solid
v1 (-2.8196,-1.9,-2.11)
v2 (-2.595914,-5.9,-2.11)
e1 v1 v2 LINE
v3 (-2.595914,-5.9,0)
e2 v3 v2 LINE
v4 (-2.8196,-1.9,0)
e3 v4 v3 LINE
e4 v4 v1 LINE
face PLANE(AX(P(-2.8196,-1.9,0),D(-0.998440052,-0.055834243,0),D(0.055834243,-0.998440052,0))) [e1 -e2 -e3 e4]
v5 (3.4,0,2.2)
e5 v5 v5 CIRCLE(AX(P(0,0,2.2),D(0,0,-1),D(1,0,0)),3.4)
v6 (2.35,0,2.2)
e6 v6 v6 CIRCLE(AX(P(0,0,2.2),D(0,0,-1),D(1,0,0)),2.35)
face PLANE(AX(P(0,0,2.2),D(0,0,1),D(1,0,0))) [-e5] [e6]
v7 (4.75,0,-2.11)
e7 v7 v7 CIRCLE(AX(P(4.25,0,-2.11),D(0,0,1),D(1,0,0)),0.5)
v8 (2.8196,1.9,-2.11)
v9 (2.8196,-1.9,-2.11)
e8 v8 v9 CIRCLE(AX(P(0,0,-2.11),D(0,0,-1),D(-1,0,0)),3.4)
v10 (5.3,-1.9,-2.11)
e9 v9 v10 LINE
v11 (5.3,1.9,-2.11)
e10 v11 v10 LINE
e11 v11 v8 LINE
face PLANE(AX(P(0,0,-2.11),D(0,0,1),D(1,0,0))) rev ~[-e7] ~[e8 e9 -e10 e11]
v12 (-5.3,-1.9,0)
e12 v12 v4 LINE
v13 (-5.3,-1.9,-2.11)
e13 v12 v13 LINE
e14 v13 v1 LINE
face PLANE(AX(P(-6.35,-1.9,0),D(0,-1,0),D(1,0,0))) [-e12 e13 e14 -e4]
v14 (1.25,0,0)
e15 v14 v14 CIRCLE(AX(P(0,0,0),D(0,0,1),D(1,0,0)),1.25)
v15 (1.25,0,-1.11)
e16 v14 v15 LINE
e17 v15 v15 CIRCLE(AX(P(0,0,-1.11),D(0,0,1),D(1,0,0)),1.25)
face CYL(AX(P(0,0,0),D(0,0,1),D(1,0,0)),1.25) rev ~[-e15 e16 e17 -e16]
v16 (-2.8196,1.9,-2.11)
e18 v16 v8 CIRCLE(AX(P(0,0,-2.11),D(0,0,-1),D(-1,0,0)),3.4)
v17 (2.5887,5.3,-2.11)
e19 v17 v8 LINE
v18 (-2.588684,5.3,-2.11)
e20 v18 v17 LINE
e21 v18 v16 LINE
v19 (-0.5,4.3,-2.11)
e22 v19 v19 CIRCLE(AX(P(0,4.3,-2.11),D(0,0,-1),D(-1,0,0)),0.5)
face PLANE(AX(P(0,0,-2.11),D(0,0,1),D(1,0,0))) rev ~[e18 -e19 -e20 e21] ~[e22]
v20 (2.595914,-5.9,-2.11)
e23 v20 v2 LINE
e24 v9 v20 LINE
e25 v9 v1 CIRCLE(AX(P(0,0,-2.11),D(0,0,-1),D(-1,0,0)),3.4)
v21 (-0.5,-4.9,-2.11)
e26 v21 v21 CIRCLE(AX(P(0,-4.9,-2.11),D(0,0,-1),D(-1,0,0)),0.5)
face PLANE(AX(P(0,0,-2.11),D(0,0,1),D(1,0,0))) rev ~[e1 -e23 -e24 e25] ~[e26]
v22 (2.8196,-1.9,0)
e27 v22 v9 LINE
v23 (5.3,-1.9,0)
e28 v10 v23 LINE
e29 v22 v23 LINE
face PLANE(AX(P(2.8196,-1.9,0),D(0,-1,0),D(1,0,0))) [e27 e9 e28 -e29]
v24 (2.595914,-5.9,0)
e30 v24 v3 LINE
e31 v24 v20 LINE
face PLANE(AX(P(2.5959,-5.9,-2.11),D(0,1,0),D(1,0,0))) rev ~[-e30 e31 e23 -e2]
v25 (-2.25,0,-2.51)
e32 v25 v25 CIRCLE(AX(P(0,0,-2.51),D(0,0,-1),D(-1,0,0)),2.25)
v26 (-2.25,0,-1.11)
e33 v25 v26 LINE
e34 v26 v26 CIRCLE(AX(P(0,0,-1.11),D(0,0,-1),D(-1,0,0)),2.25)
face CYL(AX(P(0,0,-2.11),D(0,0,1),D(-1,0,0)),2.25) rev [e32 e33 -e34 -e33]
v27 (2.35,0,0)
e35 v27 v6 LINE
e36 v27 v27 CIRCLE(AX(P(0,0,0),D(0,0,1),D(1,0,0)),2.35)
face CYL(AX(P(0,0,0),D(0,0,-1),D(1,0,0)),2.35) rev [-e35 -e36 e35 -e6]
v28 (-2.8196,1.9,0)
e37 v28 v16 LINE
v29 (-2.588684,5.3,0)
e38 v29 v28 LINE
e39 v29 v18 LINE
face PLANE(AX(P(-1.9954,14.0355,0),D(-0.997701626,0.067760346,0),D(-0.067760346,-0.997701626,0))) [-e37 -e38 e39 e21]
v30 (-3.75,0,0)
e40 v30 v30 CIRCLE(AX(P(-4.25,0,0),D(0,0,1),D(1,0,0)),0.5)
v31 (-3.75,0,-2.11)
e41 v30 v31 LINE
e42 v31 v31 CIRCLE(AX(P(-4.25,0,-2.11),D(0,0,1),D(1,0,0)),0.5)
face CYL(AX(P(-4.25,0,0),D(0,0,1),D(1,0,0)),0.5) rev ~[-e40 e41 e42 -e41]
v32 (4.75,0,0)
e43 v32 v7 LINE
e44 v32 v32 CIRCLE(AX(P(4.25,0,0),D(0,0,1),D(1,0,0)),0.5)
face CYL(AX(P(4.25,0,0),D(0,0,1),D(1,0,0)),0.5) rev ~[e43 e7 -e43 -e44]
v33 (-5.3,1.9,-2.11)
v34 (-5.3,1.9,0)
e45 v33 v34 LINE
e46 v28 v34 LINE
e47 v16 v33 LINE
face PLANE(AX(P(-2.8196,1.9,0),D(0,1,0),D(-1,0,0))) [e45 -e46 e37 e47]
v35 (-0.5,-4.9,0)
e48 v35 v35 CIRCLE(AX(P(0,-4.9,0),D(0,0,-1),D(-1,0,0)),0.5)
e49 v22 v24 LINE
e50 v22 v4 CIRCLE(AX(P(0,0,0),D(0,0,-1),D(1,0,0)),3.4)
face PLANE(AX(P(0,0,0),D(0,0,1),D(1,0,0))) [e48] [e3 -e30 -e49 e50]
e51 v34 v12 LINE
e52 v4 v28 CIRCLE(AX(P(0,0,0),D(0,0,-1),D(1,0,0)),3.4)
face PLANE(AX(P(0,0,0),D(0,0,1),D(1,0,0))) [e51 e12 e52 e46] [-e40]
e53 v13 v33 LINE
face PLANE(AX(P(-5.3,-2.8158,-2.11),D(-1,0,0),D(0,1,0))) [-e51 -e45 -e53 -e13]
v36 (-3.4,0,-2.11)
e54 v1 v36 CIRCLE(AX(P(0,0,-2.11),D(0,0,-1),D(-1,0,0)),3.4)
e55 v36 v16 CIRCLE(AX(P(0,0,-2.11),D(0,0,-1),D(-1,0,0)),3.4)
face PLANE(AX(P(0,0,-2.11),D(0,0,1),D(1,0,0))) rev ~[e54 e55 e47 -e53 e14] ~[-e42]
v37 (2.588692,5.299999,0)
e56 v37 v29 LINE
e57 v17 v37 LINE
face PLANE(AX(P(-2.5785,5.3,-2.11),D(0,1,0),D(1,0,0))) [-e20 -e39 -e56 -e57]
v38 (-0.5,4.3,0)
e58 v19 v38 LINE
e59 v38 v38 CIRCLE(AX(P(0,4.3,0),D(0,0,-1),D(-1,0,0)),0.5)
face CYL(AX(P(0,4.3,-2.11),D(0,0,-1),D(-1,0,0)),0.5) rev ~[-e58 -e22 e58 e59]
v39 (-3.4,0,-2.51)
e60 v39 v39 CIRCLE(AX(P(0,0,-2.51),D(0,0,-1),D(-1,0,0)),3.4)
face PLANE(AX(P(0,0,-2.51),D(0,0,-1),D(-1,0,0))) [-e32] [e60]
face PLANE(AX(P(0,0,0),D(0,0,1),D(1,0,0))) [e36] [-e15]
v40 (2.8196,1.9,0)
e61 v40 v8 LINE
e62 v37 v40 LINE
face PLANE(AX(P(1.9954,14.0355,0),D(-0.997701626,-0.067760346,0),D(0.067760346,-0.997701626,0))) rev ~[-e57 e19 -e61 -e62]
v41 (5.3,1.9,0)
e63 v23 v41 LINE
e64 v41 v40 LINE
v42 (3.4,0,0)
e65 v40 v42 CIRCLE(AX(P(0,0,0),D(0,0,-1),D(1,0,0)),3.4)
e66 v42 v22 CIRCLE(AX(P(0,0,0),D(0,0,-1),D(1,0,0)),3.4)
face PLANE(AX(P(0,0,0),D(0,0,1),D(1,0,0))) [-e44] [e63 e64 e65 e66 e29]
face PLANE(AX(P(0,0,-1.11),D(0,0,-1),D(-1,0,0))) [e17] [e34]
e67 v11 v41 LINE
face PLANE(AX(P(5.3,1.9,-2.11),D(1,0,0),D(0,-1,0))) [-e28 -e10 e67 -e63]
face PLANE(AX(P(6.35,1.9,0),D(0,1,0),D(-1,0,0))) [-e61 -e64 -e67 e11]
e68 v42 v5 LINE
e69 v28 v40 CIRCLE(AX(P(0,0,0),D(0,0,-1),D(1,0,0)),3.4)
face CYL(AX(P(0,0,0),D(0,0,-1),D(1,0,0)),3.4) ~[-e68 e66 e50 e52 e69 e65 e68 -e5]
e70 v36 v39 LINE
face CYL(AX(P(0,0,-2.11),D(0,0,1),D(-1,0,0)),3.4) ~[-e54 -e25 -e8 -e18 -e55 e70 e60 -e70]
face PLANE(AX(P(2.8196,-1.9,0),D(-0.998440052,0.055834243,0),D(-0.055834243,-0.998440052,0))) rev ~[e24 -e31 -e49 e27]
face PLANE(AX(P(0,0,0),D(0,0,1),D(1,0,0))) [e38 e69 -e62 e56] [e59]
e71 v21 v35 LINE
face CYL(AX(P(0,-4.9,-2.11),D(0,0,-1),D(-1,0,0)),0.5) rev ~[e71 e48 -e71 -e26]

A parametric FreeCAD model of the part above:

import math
import FreeCAD as App
import Part
import Sketcher

V = App.Vector
Q = App.Units.Quantity


def edges_at(feature, points):
    """Names of the edges that pass closest to the given points."""
    edges = feature.Shape.Edges
    near = lambda p: min(range(len(edges)), key=lambda i: edges[i].distToShape(Part.Vertex(*p))[0])
    return sorted({f"Edge{near(p) + 1}" for p in points})


def add_polygon(sketch, points):
    """Adds a closed chain of lines whose ends are joined by coincident constraints."""
    first, n = sketch.GeometryCount, len(points)
    for a, b in zip(points, points[1:] + points[:1]):
        sketch.addGeometry(Part.LineSegment(App.Vector(*a, 0), App.Vector(*b, 0)), False)
    for i in range(n):
        sketch.addConstraint(Sketcher.Constraint("Coincident", first + i, 2, first + (i + 1) % n, 1))

doc = App.newDocument("Part")
body = doc.addObject("PartDesign::Body", "Body")

sketch1 = doc.addObject("Sketcher::SketchObject", "Sketch")
body.addObject(sketch1)
sketch1.AttachmentSupport = (doc.XY_Plane, [""])
sketch1.MapMode = "FlatFace"
sketch1.addGeometry(Part.Circle(V(0, 0, 0), V(0, 0, 1), 3.4), False)
sketch1.addConstraint([
    Sketcher.Constraint("Coincident", 0, 3, -1, 1),
    Sketcher.Constraint("Diameter", 0, Q("6.8 mm")),
])
pad1 = doc.addObject("PartDesign::Pad", "Pad")
body.addObject(pad1)
pad1.Profile = sketch1
pad1.Length = 2.2

sketch2 = doc.addObject("Sketcher::SketchObject", "Sketch001")
body.addObject(sketch2)
sketch2.AttachmentSupport = (doc.XY_Plane, [""])
sketch2.MapMode = "FlatFace"
sketch2.addGeometry([
    Part.LineSegment(V(6.35, 1.9, 0), V(2.8196, 1.9, 0)),
    Part.LineSegment(V(2.8196, 1.9, 0), V(1.9954, 14.0355, 0)),
    Part.ArcOfCircle(Part.Circle(V(0, 13.9, 0), V(0, 0, 1), 1.999995), math.radians(3.884774), math.radians(176.115226)),
    Part.LineSegment(V(-1.9954, 14.0355, 0), V(-2.8196, 1.9, 0)),
    Part.LineSegment(V(-2.8196, 1.9, 0), V(-6.35, 1.9, 0)),
    Part.ArcOfCircle(Part.Circle(V(-6.35, 0, 0), V(0, 0, 1), 1.9), math.radians(90), math.radians(270)),
    Part.LineSegment(V(-6.35, -1.9, 0), V(-2.8196, -1.9, 0)),
    Part.LineSegment(V(-2.8196, -1.9, 0), V(-1.9969, -16.6117, 0)),
    Part.ArcOfCircle(Part.Circle(V(0, -16.5, 0), V(0, 0, 1), 2.000022), math.radians(-176.798399), math.radians(-3.201601)),
    Part.LineSegment(V(1.9969, -16.6117, 0), V(2.8196, -1.9, 0)),
    Part.LineSegment(V(2.8196, -1.9, 0), V(6.35, -1.9, 0)),
    Part.ArcOfCircle(Part.Circle(V(6.35, 0, 0), V(0, 0, 1), 1.9), math.radians(-90), math.radians(90)),
    Part.Circle(V(4.25, 0, 0), V(0, 0, 1), 0.5),
    Part.Circle(V(6.35, 0, 0), V(0, 0, 1), 0.5),
    Part.Circle(V(0, -16.5, 0), V(0, 0, 1), 0.5),
    Part.Circle(V(0, -14.5, 0), V(0, 0, 1), 0.5),
    Part.Circle(V(0, -12.5, 0), V(0, 0, 1), 0.5),
    Part.Circle(V(0, -10.5, 0), V(0, 0, 1), 0.5),
    Part.Circle(V(0, -8.5, 0), V(0, 0, 1), 0.5),
    Part.Circle(V(0, -6.5, 0), V(0, 0, 1), 0.5),
    Part.Circle(V(0, -4.5, 0), V(0, 0, 1), 0.5),
    Part.Circle(V(0, 4.5, 0), V(0, 0, 1), 0.5),
    Part.Circle(V(0, 6.5, 0), V(0, 0, 1), 0.5),
    Part.Circle(V(0, 8.5, 0), V(0, 0, 1), 0.5),
    Part.Circle(V(0, 10.5, 0), V(0, 0, 1), 0.5),
    Part.Circle(V(0, 12.5, 0), V(0, 0, 1), 0.5),
    Part.Circle(V(0, 14.5, 0), V(0, 0, 1), 0.5),
    Part.Circle(V(-4.25, 0, 0), V(0, 0, 1), 0.5),
    Part.Circle(V(-6.35, 0, 0), V(0, 0, 1), 0.5),
], False)
sketch2.addConstraint([
    Sketcher.Constraint("Coincident", 0, 2, 1, 1),
    Sketcher.Constraint("Tangent", 1, 2, 2, 1),
    Sketcher.Constraint("Tangent", 2, 2, 3, 1),
    Sketcher.Constraint("Coincident", 3, 2, 4, 1),
    Sketcher.Constraint("Tangent", 4, 2, 5, 1),
    Sketcher.Constraint("Tangent", 5, 2, 6, 1),
    Sketcher.Constraint("Coincident", 6, 2, 7, 1),
    Sketcher.Constraint("Tangent", 7, 2, 8, 1),
    Sketcher.Constraint("Tangent", 8, 2, 9, 1),
    Sketcher.Constraint("Coincident", 9, 2, 10, 1),
    Sketcher.Constraint("Tangent", 10, 2, 11, 1),
    Sketcher.Constraint("Tangent", 11, 2, 0, 1),
    Sketcher.Constraint("Horizontal", 0),
    Sketcher.Constraint("Horizontal", 4),
    Sketcher.Constraint("Horizontal", 6),
    Sketcher.Constraint("Horizontal", 10),
    Sketcher.Constraint("Coincident", 13, 3, 11, 3),
    Sketcher.Constraint("Coincident", 14, 3, 8, 3),
    Sketcher.Constraint("Coincident", 28, 3, 5, 3),
    Sketcher.Constraint("Equal", 2, 8),
    Sketcher.Constraint("Equal", 5, 11),
    Sketcher.Constraint("Equal", 12, 13),
    Sketcher.Constraint("Equal", 13, 14),
    Sketcher.Constraint("Equal", 14, 15),
    Sketcher.Constraint("Equal", 15, 16),
    Sketcher.Constraint("Equal", 16, 17),
    Sketcher.Constraint("Equal", 17, 18),
    Sketcher.Constraint("Equal", 18, 19),
    Sketcher.Constraint("Equal", 19, 20),
    Sketcher.Constraint("Equal", 20, 21),
    Sketcher.Constraint("Equal", 21, 22),
    Sketcher.Constraint("Equal", 22, 23),
    Sketcher.Constraint("Equal", 23, 24),
    Sketcher.Constraint("Equal", 24, 25),
    Sketcher.Constraint("Equal", 25, 26),
    Sketcher.Constraint("Equal", 26, 27),
    Sketcher.Constraint("Equal", 27, 28),
    Sketcher.Constraint("Symmetric", 5, 3, 11, 3, -1, 1),
    Sketcher.Constraint("Symmetric", 20, 3, 21, 3, -1, 1),
    Sketcher.Constraint("Symmetric", 19, 3, 22, 3, -1, 1),
    Sketcher.Constraint("Symmetric", 18, 3, 23, 3, -1, 1),
    Sketcher.Constraint("Symmetric", 17, 3, 24, 3, -1, 1),
    Sketcher.Constraint("Symmetric", 16, 3, 25, 3, -1, 1),
    Sketcher.Constraint("Symmetric", 15, 3, 26, 3, -1, 1),
    Sketcher.Constraint("Symmetric", 12, 3, 27, 3, -1, 1),
    Sketcher.Constraint("Symmetric", 1, 2, 2, 2, -2),
    Sketcher.Constraint("Symmetric", 7, 2, 8, 2, -2),
    Sketcher.Constraint("Symmetric", 3, 2, 6, 2, -1),
    Sketcher.Constraint("PointOnObject", 12, 3, -1),
    Sketcher.Constraint("PointOnObject", 15, 3, -2),
    Sketcher.Constraint("PointOnObject", 16, 3, -2),
    Sketcher.Constraint("PointOnObject", 17, 3, -2),
    Sketcher.Constraint("PointOnObject", 18, 3, -2),
    Sketcher.Constraint("PointOnObject", 19, 3, -2),
    Sketcher.Constraint("PointOnObject", 20, 3, -2),
    Sketcher.Constraint("Diameter", 12, Q("1 mm")),
    Sketcher.Constraint("Radius", 2, Q("2 mm")),
    Sketcher.Constraint("Radius", 5, Q("1.9 mm")),
    Sketcher.Constraint("DistanceY", 8, 3, 15, 3, Q("2 mm")),
    Sketcher.Constraint("DistanceY", 15, 3, 16, 3, Q("2 mm")),
    Sketcher.Constraint("DistanceY", 16, 3, 17, 3, Q("2 mm")),
    Sketcher.Constraint("DistanceY", 17, 3, 18, 3, Q("2 mm")),
    Sketcher.Constraint("DistanceY", 18, 3, 19, 3, Q("2 mm")),
    Sketcher.Constraint("DistanceY", 19, 3, 20, 3, Q("2 mm")),
    Sketcher.Constraint("DistanceY", 8, 3, -1, 1, Q("16.5 mm")),
    Sketcher.Constraint("DistanceX", 12, 3, 11, 3, Q("2.1 mm")),
    Sketcher.Constraint("Angle", 7, Q("-86.7993 deg")),
    Sketcher.Constraint("DistanceY", -1, 1, 2, 3, Q("13.9 mm")),
    Sketcher.Constraint("DistanceX", 5, 3, 11, 3, Q("12.7 mm")),
])
pad2 = doc.addObject("PartDesign::Pad", "Pad001")
body.addObject(pad2)
pad2.Profile = sketch2
pad2.Length = 2.11
pad2.Reversed = True

sketch3 = doc.addObject("Sketcher::SketchObject", "Sketch002")
body.addObject(sketch3)
sketch3.AttachmentSupport = (doc.XY_Plane, [""])
sketch3.MapMode = "FlatFace"
sketch3.addGeometry(Part.Circle(V(0, 0, 0), V(0, 0, 1), 2.35), False)
sketch3.addConstraint([
    Sketcher.Constraint("Coincident", 0, 3, -1, 1),
    Sketcher.Constraint("Diameter", 0, Q("4.7 mm")),
])
pocket1 = doc.addObject("PartDesign::Pocket", "Pocket")
body.addObject(pocket1)
pocket1.Profile = sketch3
pocket1.Length = 3.65
pocket1.Reversed = True

sketch4 = doc.addObject("Sketcher::SketchObject", "Sketch003")
body.addObject(sketch4)
sketch4.AttachmentSupport = (doc.XY_Plane, [""])
sketch4.MapMode = "FlatFace"
sketch4.addGeometry(Part.Circle(V(0, 0, 0), V(0, 0, 1), 1.25), False)
sketch4.addConstraint([
    Sketcher.Constraint("Coincident", 0, 3, -1, 1),
    Sketcher.Constraint("Diameter", 0, Q("2.5 mm")),
])
pocket2 = doc.addObject("PartDesign::Pocket", "Pocket001")
body.addObject(pocket2)
pocket2.Profile = sketch4
pocket2.Length = 7.6

sketch5 = doc.addObject("Sketcher::SketchObject", "Sketch004")
body.addObject(sketch5)
sketch5.AttachmentSupport = (doc.XY_Plane, [""])
sketch5.MapMode = "FlatFace"
sketch5.AttachmentOffset = App.Placement(V(0, 0, -2.11), App.Rotation())
sketch5.addGeometry(Part.Circle(V(0, 0, 0), V(0, 0, 1), 2.25), False)
sketch5.addConstraint([
    Sketcher.Constraint("Coincident", 0, 3, -1, 1),
    Sketcher.Constraint("Diameter", 0, Q("4.5 mm")),
])
pocket3 = doc.addObject("PartDesign::Pocket", "Pocket002")
body.addObject(pocket3)
pocket3.Profile = sketch5
pocket3.Length = 1
pocket3.Reversed = True

sketch6 = doc.addObject("Sketcher::SketchObject", "Sketch005")
body.addObject(sketch6)
sketch6.AttachmentSupport = (doc.XY_Plane, [""])
sketch6.MapMode = "FlatFace"
sketch6.AttachmentOffset = App.Placement(V(0, 0, -2.11), App.Rotation())
sketch6.addGeometry([
    Part.Circle(V(0, 0, 0), V(0, 0, 1), 3.4),
    Part.Circle(V(0, 0, 0), V(0, 0, 1), 2.25),
], False)
sketch6.addConstraint([
    Sketcher.Constraint("Coincident", 0, 3, -1, 1),
    Sketcher.Constraint("Coincident", 1, 3, -1, 1),
    Sketcher.Constraint("Diameter", 0, Q("6.8 mm")),
    Sketcher.Constraint("Diameter", 1, Q("4.5 mm")),
])
pad3 = doc.addObject("PartDesign::Pad", "Pad002")
body.addObject(pad3)
pad3.Profile = sketch6
pad3.Length = 0.4
pad3.Reversed = True

sketch7 = doc.addObject("Sketcher::SketchObject", "Sketch006")
body.addObject(sketch7)
sketch7.AttachmentSupport = (doc.XY_Plane, [""])
sketch7.MapMode = "FlatFace"
sketch7.AttachmentOffset = App.Placement(V(0, 0, -2.11), App.Rotation())
add_polygon(sketch7, [(-0.9014, 3.6394), (-0.9014, 15.3127), (1.0592, 15.3127), (1.0592, 3.6394)])
add_polygon(sketch7, [(-1.0141, -17.386), (-1.0141, -3.7747), (1.0592, -3.7747), (1.0592, -17.386)])
sketch7.addConstraint([
    Sketcher.Constraint("Vertical", 0),
    Sketcher.Constraint("Horizontal", 1),
    Sketcher.Constraint("Vertical", 2),
    Sketcher.Constraint("Horizontal", 3),
    Sketcher.Constraint("Vertical", 4),
    Sketcher.Constraint("Horizontal", 5),
    Sketcher.Constraint("Vertical", 6),
    Sketcher.Constraint("Horizontal", 7),
    Sketcher.Constraint("Vertical", 2, 2, 5, 2),
    Sketcher.Constraint("DistanceX", 1, 1, 1, 2, Q("1.9606 mm")),
    Sketcher.Constraint("DistanceX", 5, 1, 5, 2, Q("2.0733 mm")),
    Sketcher.Constraint("DistanceY", 0, 1, 0, 2, Q("11.6733 mm")),
    Sketcher.Constraint("DistanceY", 4, 1, 4, 2, Q("13.6113 mm")),
    Sketcher.Constraint("DistanceX", 4, 2, -1, 1, Q("1.014 mm")),
    Sketcher.Constraint("DistanceY", 6, 2, -1, 1, Q("17.386 mm")),
    Sketcher.Constraint("DistanceY", 4, 2, 3, 2, Q("7.414 mm")),
])
pad4 = doc.addObject("PartDesign::Pad", "Pad003")
body.addObject(pad4)
pad4.Profile = sketch7
pad4.Length = 2.11

sketch8 = doc.addObject("Sketcher::SketchObject", "Sketch007")
body.addObject(sketch8)
sketch8.AttachmentSupport = (doc.XY_Plane, [""])
sketch8.MapMode = "FlatFace"
sketch8.AttachmentOffset = App.Placement(V(0, 0, -2.11), App.Rotation())
sketch8.addGeometry([
    Part.Circle(V(0, 14.3, 0), V(0, 0, 1), 0.5),
    Part.Circle(V(0, 12.3, 0), V(0, 0, 1), 0.5),
    Part.Circle(V(0, 10.3, 0), V(0, 0, 1), 0.5),
    Part.Circle(V(0, 8.3, 0), V(0, 0, 1), 0.5),
    Part.Circle(V(0, 6.3, 0), V(0, 0, 1), 0.5),
    Part.Circle(V(0, 4.3, 0), V(0, 0, 1), 0.5),
    Part.Circle(V(0, -16.9, 0), V(0, 0, 1), 0.5),
    Part.Circle(V(0, -14.9, 0), V(0, 0, 1), 0.5),
    Part.Circle(V(0, -12.9, 0), V(0, 0, 1), 0.5),
    Part.Circle(V(0, -10.9, 0), V(0, 0, 1), 0.5),
    Part.Circle(V(0, -8.9, 0), V(0, 0, 1), 0.5),
    Part.Circle(V(0, -6.9, 0), V(0, 0, 1), 0.5),
    Part.Circle(V(0, -4.9, 0), V(0, 0, 1), 0.5),
], False)
sketch8.addConstraint([
    Sketcher.Constraint("Equal", 0, 1),
    Sketcher.Constraint("Equal", 1, 2),
    Sketcher.Constraint("Equal", 2, 3),
    Sketcher.Constraint("Equal", 3, 4),
    Sketcher.Constraint("Equal", 4, 5),
    Sketcher.Constraint("Equal", 5, 6),
    Sketcher.Constraint("Equal", 6, 7),
    Sketcher.Constraint("Equal", 7, 8),
    Sketcher.Constraint("Equal", 8, 9),
    Sketcher.Constraint("Equal", 9, 10),
    Sketcher.Constraint("Equal", 10, 11),
    Sketcher.Constraint("Equal", 11, 12),
    Sketcher.Constraint("PointOnObject", 0, 3, -2),
    Sketcher.Constraint("PointOnObject", 1, 3, -2),
    Sketcher.Constraint("PointOnObject", 2, 3, -2),
    Sketcher.Constraint("PointOnObject", 3, 3, -2),
    Sketcher.Constraint("PointOnObject", 4, 3, -2),
    Sketcher.Constraint("PointOnObject", 5, 3, -2),
    Sketcher.Constraint("PointOnObject", 6, 3, -2),
    Sketcher.Constraint("PointOnObject", 7, 3, -2),
    Sketcher.Constraint("PointOnObject", 8, 3, -2),
    Sketcher.Constraint("PointOnObject", 9, 3, -2),
    Sketcher.Constraint("PointOnObject", 10, 3, -2),
    Sketcher.Constraint("PointOnObject", 11, 3, -2),
    Sketcher.Constraint("PointOnObject", 12, 3, -2),
    Sketcher.Constraint("Diameter", 0, Q("1 mm")),
    Sketcher.Constraint("DistanceY", 1, 3, 0, 3, Q("2 mm")),
    Sketcher.Constraint("DistanceY", 2, 3, 1, 3, Q("2 mm")),
    Sketcher.Constraint("DistanceY", 3, 3, 2, 3, Q("2 mm")),
    Sketcher.Constraint("DistanceY", 4, 3, 3, 3, Q("2 mm")),
    Sketcher.Constraint("DistanceY", 5, 3, 4, 3, Q("2 mm")),
    Sketcher.Constraint("DistanceY", 6, 3, 7, 3, Q("2 mm")),
    Sketcher.Constraint("DistanceY", 7, 3, 8, 3, Q("2 mm")),
    Sketcher.Constraint("DistanceY", 8, 3, 9, 3, Q("2 mm")),
    Sketcher.Constraint("DistanceY", 9, 3, 10, 3, Q("2 mm")),
    Sketcher.Constraint("DistanceY", 10, 3, 11, 3, Q("2 mm")),
    Sketcher.Constraint("DistanceY", 11, 3, 12, 3, Q("2 mm")),
    Sketcher.Constraint("DistanceY", -1, 1, 0, 3, Q("14.3 mm")),
    Sketcher.Constraint("DistanceY", 6, 3, -1, 1, Q("16.9 mm")),
])
pocket4 = doc.addObject("PartDesign::Pocket", "Pocket003")
body.addObject(pocket4)
pocket4.Profile = sketch8
pocket4.Length = 2.11
pocket4.Reversed = True

sketch9 = doc.addObject("Sketcher::SketchObject", "Sketch008")
body.addObject(sketch9)
sketch9.AttachmentSupport = (doc.XY_Plane, [""])
sketch9.MapMode = "FlatFace"
sketch9.AttachmentOffset = App.Placement(V(0, 0, -2.11), App.Rotation())
sketch9.addGeometry([
    Part.ArcOfCircle(Part.Circle(V(0, 8.3, 0), V(0, 0, 1), 0.5), math.radians(0), math.radians(180)),
    Part.LineSegment(V(-0.5, 8.3, 0), V(-3.8465, 8.3, 0)),
    Part.LineSegment(V(-3.8465, 8.3, 0), V(-3.8465, 17.7965, 0)),
    Part.LineSegment(V(-3.8465, 17.7965, 0), V(4.3088, 17.7965, 0)),
    Part.LineSegment(V(4.3088, 17.7965, 0), V(4.3088, 8.3, 0)),
    Part.LineSegment(V(4.3088, 8.3, 0), V(0.5, 8.3, 0)),
    Part.LineSegment(V(-5.2333, -8.9, 0), V(-0.5, -8.9, 0)),
    Part.ArcOfCircle(Part.Circle(V(0, -8.9, 0), V(0, 0, 1), 0.5), math.radians(180), math.radians(360)),
    Part.LineSegment(V(0.5, -8.9, 0), V(4.9031, -8.9, 0)),
    Part.LineSegment(V(4.9031, -8.9, 0), V(4.9031, -19.7775, 0)),
    Part.LineSegment(V(4.9031, -19.7775, 0), V(-5.2333, -19.7775, 0)),
    Part.LineSegment(V(-5.2333, -19.7775, 0), V(-5.2333, -8.9, 0)),
], False)
sketch9.addConstraint([
    Sketcher.Constraint("Coincident", 0, 2, 1, 1),
    Sketcher.Constraint("Coincident", 1, 2, 2, 1),
    Sketcher.Constraint("Coincident", 2, 2, 3, 1),
    Sketcher.Constraint("Coincident", 3, 2, 4, 1),
    Sketcher.Constraint("Coincident", 4, 2, 5, 1),
    Sketcher.Constraint("Coincident", 5, 2, 0, 1),
    Sketcher.Constraint("Coincident", 6, 2, 7, 1),
    Sketcher.Constraint("Coincident", 7, 2, 8, 1),
    Sketcher.Constraint("Coincident", 8, 2, 9, 1),
    Sketcher.Constraint("Coincident", 9, 2, 10, 1),
    Sketcher.Constraint("Coincident", 10, 2, 11, 1),
    Sketcher.Constraint("Coincident", 11, 2, 6, 1),
    Sketcher.Constraint("Horizontal", 1),
    Sketcher.Constraint("Vertical", 2),
    Sketcher.Constraint("Horizontal", 3),
    Sketcher.Constraint("Vertical", 4),
    Sketcher.Constraint("Horizontal", 5),
    Sketcher.Constraint("Horizontal", 6),
    Sketcher.Constraint("Horizontal", 8),
    Sketcher.Constraint("Vertical", 9),
    Sketcher.Constraint("Horizontal", 10),
    Sketcher.Constraint("Vertical", 11),
    Sketcher.Constraint("Equal", 0, 7),
    Sketcher.Constraint("Symmetric", 0, 2, 5, 2, -2),
    Sketcher.Constraint("Symmetric", 6, 2, 7, 2, -2),
    Sketcher.Constraint("Horizontal", 7, 3, 6, 2),
    Sketcher.Constraint("Radius", 0, Q("0.5 mm")),
    Sketcher.Constraint("DistanceY", -1, 1, 0, 3, Q("8.3 mm")),
    Sketcher.Constraint("DistanceY", 7, 3, -1, 1, Q("8.9 mm")),
    Sketcher.Constraint("DistanceY", -1, 1, 0, 2, Q("8.3 mm")),
    Sketcher.Constraint("DistanceX", 8, 1, 8, 2, Q("4.403 mm")),
    Sketcher.Constraint("DistanceX", 1, 2, 1, 1, Q("3.3465 mm")),
    Sketcher.Constraint("DistanceX", 3, 1, 3, 2, Q("8.1553 mm")),
    Sketcher.Constraint("DistanceX", 6, 1, 6, 2, Q("4.7333 mm")),
    Sketcher.Constraint("DistanceY", 2, 1, 2, 2, Q("9.4965 mm")),
    Sketcher.Constraint("DistanceY", 9, 2, 9, 1, Q("10.8775 mm")),
])
pocket5 = doc.addObject("PartDesign::Pocket", "Pocket004")
body.addObject(pocket5)
pocket5.Profile = sketch9
pocket5.Length = 10
pocket5.Reversed = True

sketch10 = doc.addObject("Sketcher::SketchObject", "Sketch009")
body.addObject(sketch10)
sketch10.AttachmentSupport = (doc.XY_Plane, [""])
sketch10.MapMode = "FlatFace"
sketch10.AttachmentOffset = App.Placement(V(0, 0, -2.11), App.Rotation())
add_polygon(sketch10, [(3.4414, 7.8), (-4.3151, 7.8), (-3.7805, 10.6296), (3.3513, 10.6296)])
add_polygon(sketch10, [(-4.5069, -8.4), (4.0138, -8.4), (4.0138, -10.1694), (-4.5069, -10.1694)])
sketch10.addConstraint([
    Sketcher.Constraint("Horizontal", 0),
    Sketcher.Constraint("Horizontal", 2),
    Sketcher.Constraint("Horizontal", 4),
    Sketcher.Constraint("Vertical", 5),
    Sketcher.Constraint("Horizontal", 6),
    Sketcher.Constraint("Vertical", 7),
    Sketcher.Constraint("Angle", 1, Q("79.3011 deg")),
    Sketcher.Constraint("DistanceY", -1, 1, 0, 2, Q("7.8 mm")),
    Sketcher.Constraint("DistanceY", 4, 2, -1, 1, Q("8.4 mm")),
    Sketcher.Constraint("DistanceX", 2, 2, 3, 2, Q("0.09 mm")),
    Sketcher.Constraint("Distance", 3, Q("2.831 mm")),
    Sketcher.Constraint("DistanceX", 0, 2, 0, 1, Q("7.7565 mm")),
    Sketcher.Constraint("DistanceX", 4, 1, 4, 2, Q("8.5207 mm")),
    Sketcher.Constraint("DistanceY", 5, 2, 5, 1, Q("1.7694 mm")),
    Sketcher.Constraint("DistanceX", 0, 2, -1, 1, Q("4.315 mm")),
    Sketcher.Constraint("DistanceX", 6, 2, -1, 1, Q("4.507 mm")),
])
pocket6 = doc.addObject("PartDesign::Pocket", "Pocket005")
body.addObject(pocket6)
pocket6.Profile = sketch10
pocket6.Length = 10
pocket6.Reversed = True
doc.recompute()

fillet = doc.addObject("PartDesign::Fillet", "Fillet")
body.addObject(fillet)
fillet.Base = (pocket6, edges_at(pocket6, [(-2.419, 7.8, -1.055), (-2.456, -8.4, -1.055)]))
fillet.Radius = 2

sketch11 = doc.addObject("Sketcher::SketchObject", "Sketch010")
body.addObject(sketch11)
sketch11.AttachmentSupport = (doc.XY_Plane, [""])
sketch11.MapMode = "FlatFace"
sketch11.AttachmentOffset = App.Placement(V(0, 0, -2.11), App.Rotation())
add_polygon(sketch11, [(5.3, -2.6397), (5.3, 1.9), (8.4677, 1.9), (8.4677, -2.6397)])
add_polygon(sketch11, [(2.5887, 5.3), (-3.3006, 5.3), (-3.3006, 8.0343), (2.5887, 8.0343)])
add_polygon(sketch11, [(-3.3006, -9.5734), (-3.3006, -5.9), (3.636, -5.9), (3.636, -9.5734)])
add_polygon(sketch11, [(-9.4862, 1.9), (-5.3, 1.9), (-5.3, -2.8158), (-9.4862, -2.8158)])
sketch11.addConstraint([
    Sketcher.Constraint("Vertical", 0),
    Sketcher.Constraint("Horizontal", 1),
    Sketcher.Constraint("Vertical", 2),
    Sketcher.Constraint("Horizontal", 3),
    Sketcher.Constraint("Horizontal", 4),
    Sketcher.Constraint("Vertical", 5),
    Sketcher.Constraint("Horizontal", 6),
    Sketcher.Constraint("Vertical", 7),
    Sketcher.Constraint("Vertical", 8),
    Sketcher.Constraint("Horizontal", 9),
    Sketcher.Constraint("Vertical", 10),
    Sketcher.Constraint("Horizontal", 11),
    Sketcher.Constraint("Horizontal", 12),
    Sketcher.Constraint("Vertical", 13),
    Sketcher.Constraint("Horizontal", 14),
    Sketcher.Constraint("Vertical", 15),
    Sketcher.Constraint("Symmetric", 0, 2, 12, 2, -2),
    Sketcher.Constraint("Vertical", 5, 2, 8, 2),
    Sketcher.Constraint("DistanceX", -1, 1, 0, 2, Q("5.3 mm")),
    Sketcher.Constraint("DistanceY", -1, 1, 0, 2, Q("1.9 mm")),
    Sketcher.Constraint("DistanceY", -1, 1, 4, 2, Q("5.3 mm")),
    Sketcher.Constraint("DistanceY", 8, 2, -1, 1, Q("5.9 mm")),
    Sketcher.Constraint("DistanceX", 1, 1, 1, 2, Q("3.1677 mm")),
    Sketcher.Constraint("DistanceX", 4, 2, 4, 1, Q("5.8893 mm")),
    Sketcher.Constraint("DistanceX", 9, 1, 9, 2, Q("6.9366 mm")),
    Sketcher.Constraint("DistanceX", 12, 1, 12, 2, Q("4.1862 mm")),
    Sketcher.Constraint("DistanceY", 0, 1, 0, 2, Q("4.5397 mm")),
    Sketcher.Constraint("DistanceY", 5, 1, 5, 2, Q("2.7343 mm")),
    Sketcher.Constraint("DistanceY", 8, 1, 8, 2, Q("3.6734 mm")),
    Sketcher.Constraint("DistanceY", 13, 2, 13, 1, Q("4.7158 mm")),
    Sketcher.Constraint("DistanceX", -1, 1, 9, 2, Q("3.636 mm")),
])
pocket7 = doc.addObject("PartDesign::Pocket", "Pocket006")
body.addObject(pocket7)
pocket7.Profile = sketch11
pocket7.Length = 10
pocket7.Reversed = True

doc.recompute()
